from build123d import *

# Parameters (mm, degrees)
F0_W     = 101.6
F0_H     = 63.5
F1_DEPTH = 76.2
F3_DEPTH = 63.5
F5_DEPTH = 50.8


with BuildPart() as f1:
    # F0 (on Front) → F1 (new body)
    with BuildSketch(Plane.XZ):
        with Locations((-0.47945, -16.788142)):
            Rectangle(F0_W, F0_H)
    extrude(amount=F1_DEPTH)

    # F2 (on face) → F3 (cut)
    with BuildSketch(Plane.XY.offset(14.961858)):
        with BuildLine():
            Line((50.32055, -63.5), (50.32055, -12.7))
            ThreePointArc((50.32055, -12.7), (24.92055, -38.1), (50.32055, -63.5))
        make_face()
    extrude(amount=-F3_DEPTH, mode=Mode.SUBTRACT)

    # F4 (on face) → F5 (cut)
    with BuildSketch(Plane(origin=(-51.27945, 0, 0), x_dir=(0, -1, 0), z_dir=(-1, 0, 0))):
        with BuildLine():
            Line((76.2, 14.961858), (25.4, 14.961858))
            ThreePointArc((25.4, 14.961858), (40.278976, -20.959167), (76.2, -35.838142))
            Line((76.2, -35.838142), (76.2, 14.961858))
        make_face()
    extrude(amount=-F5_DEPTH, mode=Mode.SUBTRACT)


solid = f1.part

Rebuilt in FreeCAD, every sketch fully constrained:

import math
import FreeCAD as App
import Part
import Sketcher
Q = App.Units.Quantity


def add_polygon(sketch, points):
    """Adds a closed chain of lines whose ends are joined by coincident constraints."""
    first, n = sketch.GeometryCount, len(points)
    for a, b in zip(points, points[1:] + points[:1]):
        sketch.addGeometry(Part.LineSegment(App.Vector(*a, 0), App.Vector(*b, 0)), False)
    for i in range(n):
        sketch.addConstraint(Sketcher.Constraint("Coincident", first + i, 2, first + (i + 1) % n, 1))

doc = App.newDocument("Part")
body = doc.addObject("PartDesign::Body", "Body")

# Sketch on XZ plane
sketch1 = body.newObject("Sketcher::SketchObject", "Sketch")
sketch1.AttachmentSupport = (doc.getObject("XZ_Plane"), [""])
sketch1.MapMode = "FlatFace"
add_polygon(sketch1, [(-51.27945, 14.961858), (-51.27945, -48.538142), (50.32055, -48.538142), (50.32055, 14.961858)])  # lines 0-3
sketch1.addConstraint(Sketcher.Constraint("Vertical", 0))
sketch1.addConstraint(Sketcher.Constraint("Horizontal", 1))
sketch1.addConstraint(Sketcher.Constraint("Vertical", 2))
sketch1.addConstraint(Sketcher.Constraint("Horizontal", 3))
sketch1.addConstraint(Sketcher.Constraint("DistanceX", 1, 1, 1, 2, Q("4 in")))
sketch1.addConstraint(Sketcher.Constraint("DistanceY", 0, 2, 0, 1, Q("2.5 in")))
sketch1.addConstraint(Sketcher.Constraint("DistanceX", 0, 2, -1, 1, 51.27945))
sketch1.addConstraint(Sketcher.Constraint("DistanceY", 0, 2, -1, 1, 48.538142))
pad1 = body.newObject("PartDesign::Pad", "Pad")
pad1.Profile = sketch1
pad1.Length = Q("3 in")

# Sketch on XY plane
sketch2 = body.newObject("Sketcher::SketchObject", "Sketch001")
sketch2.AttachmentSupport = (doc.getObject("XY_Plane"), [""])
sketch2.MapMode = "FlatFace"
sketch2.AttachmentOffset = App.Placement(App.Vector(0, 0, 14.961858), App.Rotation())
sketch2.addGeometry(Part.LineSegment(App.Vector(50.32055, -63.5, 0), App.Vector(50.32055, -12.7, 0)), False)
sketch2.addGeometry(Part.ArcOfCircle(Part.Circle(App.Vector(50.32055, -38.1, 0), App.Vector(0, 0, 1), 25.4), math.radians(90), math.radians(270)), False)
sketch2.addConstraint(Sketcher.Constraint("Coincident", 0, 1, 1, 2))
sketch2.addConstraint(Sketcher.Constraint("Coincident", 1, 1, 0, 2))
sketch2.addConstraint(Sketcher.Constraint("Vertical", 0))
sketch2.addConstraint(Sketcher.Constraint("Vertical", 1, 3, 0, 1))
sketch2.addConstraint(Sketcher.Constraint("Radius", 1, Q("1 in")))
sketch2.addConstraint(Sketcher.Constraint("DistanceY", 1, 3, -1, 1, Q("1.5 in")))
sketch2.addConstraint(Sketcher.Constraint("DistanceX", -1, 1, 1, 3, 50.32055))
pocket1 = body.newObject("PartDesign::Pocket", "Pocket")
pocket1.Profile = sketch2
pocket1.Length = Q("2.5 in")

# Sketch on YZ plane
sketch3 = body.newObject("Sketcher::SketchObject", "Sketch002")
sketch3.AttachmentSupport = (doc.getObject("YZ_Plane"), [""])
sketch3.MapMode = "FlatFace"
sketch3.AttachmentOffset = App.Placement(App.Vector(0, 0, -51.27945), App.Rotation())
sketch3.addGeometry(Part.LineSegment(App.Vector(-76.2, 14.961858, 0), App.Vector(-25.4, 14.961858, 0)), False)
sketch3.addGeometry(Part.ArcOfCircle(Part.Circle(App.Vector(-76.2, 14.961858, 0), App.Vector(0, 0, 1), 50.8), math.radians(-90), math.radians(0)), False)
sketch3.addGeometry(Part.LineSegment(App.Vector(-76.2, -35.838142, 0), App.Vector(-76.2, 14.961858, 0)), False)
sketch3.addConstraint(Sketcher.Constraint("Coincident", 0, 2, 1, 2))
sketch3.addConstraint(Sketcher.Constraint("Coincident", 1, 1, 2, 1))
sketch3.addConstraint(Sketcher.Constraint("Coincident", 2, 2, 0, 1))
sketch3.addConstraint(Sketcher.Constraint("Horizontal", 0))
sketch3.addConstraint(Sketcher.Constraint("Vertical", 2))
sketch3.addConstraint(Sketcher.Constraint("Coincident", 2, 2, 1, 3))
sketch3.addConstraint(Sketcher.Constraint("Radius", 1, Q("2 in")))
sketch3.addConstraint(Sketcher.Constraint("DistanceX", 1, 3, -1, 1, Q("3 in")))
sketch3.addConstraint(Sketcher.Constraint("DistanceY", 1, 1, -1, 1, 35.838142))
pocket2 = body.newObject("PartDesign::Pocket", "Pocket001")
pocket2.Profile = sketch3
pocket2.Length = Q("2 in")
pocket2.Reversed = True

doc.recompute()
